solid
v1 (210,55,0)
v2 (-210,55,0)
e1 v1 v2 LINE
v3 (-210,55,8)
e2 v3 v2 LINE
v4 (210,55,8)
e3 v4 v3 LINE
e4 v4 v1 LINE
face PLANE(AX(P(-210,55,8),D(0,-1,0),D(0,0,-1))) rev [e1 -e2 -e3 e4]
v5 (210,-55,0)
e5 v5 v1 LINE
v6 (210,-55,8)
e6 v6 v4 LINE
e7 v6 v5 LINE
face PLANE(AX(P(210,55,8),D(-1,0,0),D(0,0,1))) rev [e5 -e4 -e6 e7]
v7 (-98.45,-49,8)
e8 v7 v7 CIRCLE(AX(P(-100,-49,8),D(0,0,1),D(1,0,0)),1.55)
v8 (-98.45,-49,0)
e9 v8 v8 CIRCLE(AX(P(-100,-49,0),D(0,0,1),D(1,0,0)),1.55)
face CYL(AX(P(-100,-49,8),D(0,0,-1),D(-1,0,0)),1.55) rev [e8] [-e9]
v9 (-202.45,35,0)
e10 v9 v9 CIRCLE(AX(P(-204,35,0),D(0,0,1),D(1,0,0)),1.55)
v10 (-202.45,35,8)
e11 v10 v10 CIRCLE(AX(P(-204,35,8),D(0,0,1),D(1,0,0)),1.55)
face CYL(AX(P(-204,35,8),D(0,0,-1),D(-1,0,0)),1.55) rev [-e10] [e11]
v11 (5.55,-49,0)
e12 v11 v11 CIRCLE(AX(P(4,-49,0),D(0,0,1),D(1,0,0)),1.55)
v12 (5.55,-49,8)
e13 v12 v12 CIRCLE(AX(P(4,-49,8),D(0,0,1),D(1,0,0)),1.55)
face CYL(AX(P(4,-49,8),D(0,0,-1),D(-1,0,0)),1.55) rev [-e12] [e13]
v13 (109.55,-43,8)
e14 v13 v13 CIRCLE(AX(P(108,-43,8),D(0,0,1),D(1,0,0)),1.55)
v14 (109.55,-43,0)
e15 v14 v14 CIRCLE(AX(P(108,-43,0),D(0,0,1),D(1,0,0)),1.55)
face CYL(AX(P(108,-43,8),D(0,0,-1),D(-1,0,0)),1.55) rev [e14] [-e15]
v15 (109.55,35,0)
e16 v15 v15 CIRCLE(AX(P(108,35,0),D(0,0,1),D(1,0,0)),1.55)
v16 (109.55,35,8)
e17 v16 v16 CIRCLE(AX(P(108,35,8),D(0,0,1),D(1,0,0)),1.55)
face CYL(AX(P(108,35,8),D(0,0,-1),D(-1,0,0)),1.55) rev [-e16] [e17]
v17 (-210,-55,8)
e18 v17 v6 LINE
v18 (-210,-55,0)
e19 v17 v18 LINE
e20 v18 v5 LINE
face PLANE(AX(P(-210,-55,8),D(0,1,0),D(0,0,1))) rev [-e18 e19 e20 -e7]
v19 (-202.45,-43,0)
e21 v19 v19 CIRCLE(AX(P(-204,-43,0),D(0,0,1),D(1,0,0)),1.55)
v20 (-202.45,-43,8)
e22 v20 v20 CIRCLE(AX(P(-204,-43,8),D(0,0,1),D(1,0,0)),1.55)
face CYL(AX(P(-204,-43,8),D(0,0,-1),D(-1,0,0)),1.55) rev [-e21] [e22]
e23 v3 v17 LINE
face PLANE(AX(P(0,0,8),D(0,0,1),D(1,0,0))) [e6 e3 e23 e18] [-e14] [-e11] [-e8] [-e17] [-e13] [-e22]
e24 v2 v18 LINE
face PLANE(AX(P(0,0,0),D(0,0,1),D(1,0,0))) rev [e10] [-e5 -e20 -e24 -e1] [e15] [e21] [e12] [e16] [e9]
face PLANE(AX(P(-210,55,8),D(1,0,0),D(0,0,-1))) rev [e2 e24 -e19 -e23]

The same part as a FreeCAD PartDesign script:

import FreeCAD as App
import Part
import Sketcher

V = App.Vector
Q = App.Units.Quantity

doc = App.newDocument("Part")
body = doc.addObject("PartDesign::Body", "Body")

sketch1 = body.newObject("Sketcher::SketchObject", "Sketch")
sketch1.AttachmentSupport = (doc.getObject("XY_Plane"), [""])
sketch1.MapMode = "FlatFace"
sketch1.addGeometry(Part.LineSegment(V(-210, 55, 0), V(-210, -55, 0)), False)
sketch1.addGeometry(Part.LineSegment(V(-210, -55, 0), V(210, -55, 0)), False)
sketch1.addGeometry(Part.LineSegment(V(210, -55, 0), V(210, 55, 0)), False)
sketch1.addGeometry(Part.LineSegment(V(210, 55, 0), V(-210, 55, 0)), False)
sketch1.addConstraint(Sketcher.Constraint("Coincident", 0, 2, 1, 1))
sketch1.addConstraint(Sketcher.Constraint("Coincident", 1, 2, 2, 1))
sketch1.addConstraint(Sketcher.Constraint("Coincident", 2, 2, 3, 1))
sketch1.addConstraint(Sketcher.Constraint("Coincident", 3, 2, 0, 1))
sketch1.addConstraint(Sketcher.Constraint("Vertical", 0))
sketch1.addConstraint(Sketcher.Constraint("Horizontal", 1))
sketch1.addConstraint(Sketcher.Constraint("Vertical", 2))
sketch1.addConstraint(Sketcher.Constraint("Horizontal", 3))
sketch1.addConstraint(Sketcher.Constraint("Symmetric", 0, 2, 2, 2, -1, 1))
sketch1.addConstraint(Sketcher.Constraint("DistanceX", 1, 1, 1, 2, Q("420 mm")))
sketch1.addConstraint(Sketcher.Constraint("DistanceY", 0, 2, 0, 1, Q("110 mm")))
pad1 = body.newObject("PartDesign::Pad", "Pad")
pad1.Profile = sketch1
pad1.Length = 8

sketch2 = body.newObject("Sketcher::SketchObject", "Sketch001")
sketch2.AttachmentSupport = (doc.getObject("XY_Plane"), [""])
sketch2.MapMode = "FlatFace"
sketch2.addGeometry(Part.Circle(V(-204, 35, 0), V(0, 0, 1), 1.6), False)
sketch2.addGeometry(Part.Circle(V(-204, -43, 0), V(0, 0, 1), 1.6), False)
sketch2.addGeometry(Part.Circle(V(-100, -49, 0), V(0, 0, 1), 1.6), False)
sketch2.addGeometry(Part.Circle(V(4, -49, 0), V(0, 0, 1), 1.6), False)
sketch2.addGeometry(Part.Circle(V(108, -43, 0), V(0, 0, 1), 1.6), False)
sketch2.addGeometry(Part.Circle(V(108, 35, 0), V(0, 0, 1), 1.6), False)
sketch2.addConstraint(Sketcher.Constraint("Equal", 0, 1))
sketch2.addConstraint(Sketcher.Constraint("Equal", 1, 2))
sketch2.addConstraint(Sketcher.Constraint("Equal", 2, 3))
sketch2.addConstraint(Sketcher.Constraint("Equal", 3, 4))
sketch2.addConstraint(Sketcher.Constraint("Equal", 4, 5))
sketch2.addConstraint(Sketcher.Constraint("Horizontal", 2, 3, 3, 3))
sketch2.addConstraint(Sketcher.Constraint("Horizontal", 1, 3, 4, 3))
sketch2.addConstraint(Sketcher.Constraint("Horizontal", 0, 3, 5, 3))
sketch2.addConstraint(Sketcher.Constraint("Vertical", 0, 3, 1, 3))
sketch2.addConstraint(Sketcher.Constraint("Vertical", 4, 3, 5, 3))
sketch2.addConstraint(Sketcher.Constraint("Diameter", 0, Q("3.1 mm")))
sketch2.addConstraint(Sketcher.Constraint("DistanceX", 0, 3, -1, 1, Q("204 mm")))
sketch2.addConstraint(Sketcher.Constraint("DistanceY", -1, 1, 0, 3, Q("35 mm")))
sketch2.addConstraint(Sketcher.Constraint("DistanceY", 1, 3, -1, 1, Q("43 mm")))
sketch2.addConstraint(Sketcher.Constraint("DistanceX", 2, 3, -1, 1, Q("100 mm")))
sketch2.addConstraint(Sketcher.Constraint("DistanceY", 2, 3, -1, 1, Q("49 mm")))
sketch2.addConstraint(Sketcher.Constraint("DistanceX", -1, 1, 3, 3, Q("4 mm")))
sketch2.addConstraint(Sketcher.Constraint("DistanceX", -1, 1, 4, 3, Q("108 mm")))
pocket1 = body.newObject("PartDesign::Pocket", "Pocket")
pocket1.Profile = sketch2
pocket1.Type = "ThroughAll"
pocket1.Reversed = True

doc.recompute()
